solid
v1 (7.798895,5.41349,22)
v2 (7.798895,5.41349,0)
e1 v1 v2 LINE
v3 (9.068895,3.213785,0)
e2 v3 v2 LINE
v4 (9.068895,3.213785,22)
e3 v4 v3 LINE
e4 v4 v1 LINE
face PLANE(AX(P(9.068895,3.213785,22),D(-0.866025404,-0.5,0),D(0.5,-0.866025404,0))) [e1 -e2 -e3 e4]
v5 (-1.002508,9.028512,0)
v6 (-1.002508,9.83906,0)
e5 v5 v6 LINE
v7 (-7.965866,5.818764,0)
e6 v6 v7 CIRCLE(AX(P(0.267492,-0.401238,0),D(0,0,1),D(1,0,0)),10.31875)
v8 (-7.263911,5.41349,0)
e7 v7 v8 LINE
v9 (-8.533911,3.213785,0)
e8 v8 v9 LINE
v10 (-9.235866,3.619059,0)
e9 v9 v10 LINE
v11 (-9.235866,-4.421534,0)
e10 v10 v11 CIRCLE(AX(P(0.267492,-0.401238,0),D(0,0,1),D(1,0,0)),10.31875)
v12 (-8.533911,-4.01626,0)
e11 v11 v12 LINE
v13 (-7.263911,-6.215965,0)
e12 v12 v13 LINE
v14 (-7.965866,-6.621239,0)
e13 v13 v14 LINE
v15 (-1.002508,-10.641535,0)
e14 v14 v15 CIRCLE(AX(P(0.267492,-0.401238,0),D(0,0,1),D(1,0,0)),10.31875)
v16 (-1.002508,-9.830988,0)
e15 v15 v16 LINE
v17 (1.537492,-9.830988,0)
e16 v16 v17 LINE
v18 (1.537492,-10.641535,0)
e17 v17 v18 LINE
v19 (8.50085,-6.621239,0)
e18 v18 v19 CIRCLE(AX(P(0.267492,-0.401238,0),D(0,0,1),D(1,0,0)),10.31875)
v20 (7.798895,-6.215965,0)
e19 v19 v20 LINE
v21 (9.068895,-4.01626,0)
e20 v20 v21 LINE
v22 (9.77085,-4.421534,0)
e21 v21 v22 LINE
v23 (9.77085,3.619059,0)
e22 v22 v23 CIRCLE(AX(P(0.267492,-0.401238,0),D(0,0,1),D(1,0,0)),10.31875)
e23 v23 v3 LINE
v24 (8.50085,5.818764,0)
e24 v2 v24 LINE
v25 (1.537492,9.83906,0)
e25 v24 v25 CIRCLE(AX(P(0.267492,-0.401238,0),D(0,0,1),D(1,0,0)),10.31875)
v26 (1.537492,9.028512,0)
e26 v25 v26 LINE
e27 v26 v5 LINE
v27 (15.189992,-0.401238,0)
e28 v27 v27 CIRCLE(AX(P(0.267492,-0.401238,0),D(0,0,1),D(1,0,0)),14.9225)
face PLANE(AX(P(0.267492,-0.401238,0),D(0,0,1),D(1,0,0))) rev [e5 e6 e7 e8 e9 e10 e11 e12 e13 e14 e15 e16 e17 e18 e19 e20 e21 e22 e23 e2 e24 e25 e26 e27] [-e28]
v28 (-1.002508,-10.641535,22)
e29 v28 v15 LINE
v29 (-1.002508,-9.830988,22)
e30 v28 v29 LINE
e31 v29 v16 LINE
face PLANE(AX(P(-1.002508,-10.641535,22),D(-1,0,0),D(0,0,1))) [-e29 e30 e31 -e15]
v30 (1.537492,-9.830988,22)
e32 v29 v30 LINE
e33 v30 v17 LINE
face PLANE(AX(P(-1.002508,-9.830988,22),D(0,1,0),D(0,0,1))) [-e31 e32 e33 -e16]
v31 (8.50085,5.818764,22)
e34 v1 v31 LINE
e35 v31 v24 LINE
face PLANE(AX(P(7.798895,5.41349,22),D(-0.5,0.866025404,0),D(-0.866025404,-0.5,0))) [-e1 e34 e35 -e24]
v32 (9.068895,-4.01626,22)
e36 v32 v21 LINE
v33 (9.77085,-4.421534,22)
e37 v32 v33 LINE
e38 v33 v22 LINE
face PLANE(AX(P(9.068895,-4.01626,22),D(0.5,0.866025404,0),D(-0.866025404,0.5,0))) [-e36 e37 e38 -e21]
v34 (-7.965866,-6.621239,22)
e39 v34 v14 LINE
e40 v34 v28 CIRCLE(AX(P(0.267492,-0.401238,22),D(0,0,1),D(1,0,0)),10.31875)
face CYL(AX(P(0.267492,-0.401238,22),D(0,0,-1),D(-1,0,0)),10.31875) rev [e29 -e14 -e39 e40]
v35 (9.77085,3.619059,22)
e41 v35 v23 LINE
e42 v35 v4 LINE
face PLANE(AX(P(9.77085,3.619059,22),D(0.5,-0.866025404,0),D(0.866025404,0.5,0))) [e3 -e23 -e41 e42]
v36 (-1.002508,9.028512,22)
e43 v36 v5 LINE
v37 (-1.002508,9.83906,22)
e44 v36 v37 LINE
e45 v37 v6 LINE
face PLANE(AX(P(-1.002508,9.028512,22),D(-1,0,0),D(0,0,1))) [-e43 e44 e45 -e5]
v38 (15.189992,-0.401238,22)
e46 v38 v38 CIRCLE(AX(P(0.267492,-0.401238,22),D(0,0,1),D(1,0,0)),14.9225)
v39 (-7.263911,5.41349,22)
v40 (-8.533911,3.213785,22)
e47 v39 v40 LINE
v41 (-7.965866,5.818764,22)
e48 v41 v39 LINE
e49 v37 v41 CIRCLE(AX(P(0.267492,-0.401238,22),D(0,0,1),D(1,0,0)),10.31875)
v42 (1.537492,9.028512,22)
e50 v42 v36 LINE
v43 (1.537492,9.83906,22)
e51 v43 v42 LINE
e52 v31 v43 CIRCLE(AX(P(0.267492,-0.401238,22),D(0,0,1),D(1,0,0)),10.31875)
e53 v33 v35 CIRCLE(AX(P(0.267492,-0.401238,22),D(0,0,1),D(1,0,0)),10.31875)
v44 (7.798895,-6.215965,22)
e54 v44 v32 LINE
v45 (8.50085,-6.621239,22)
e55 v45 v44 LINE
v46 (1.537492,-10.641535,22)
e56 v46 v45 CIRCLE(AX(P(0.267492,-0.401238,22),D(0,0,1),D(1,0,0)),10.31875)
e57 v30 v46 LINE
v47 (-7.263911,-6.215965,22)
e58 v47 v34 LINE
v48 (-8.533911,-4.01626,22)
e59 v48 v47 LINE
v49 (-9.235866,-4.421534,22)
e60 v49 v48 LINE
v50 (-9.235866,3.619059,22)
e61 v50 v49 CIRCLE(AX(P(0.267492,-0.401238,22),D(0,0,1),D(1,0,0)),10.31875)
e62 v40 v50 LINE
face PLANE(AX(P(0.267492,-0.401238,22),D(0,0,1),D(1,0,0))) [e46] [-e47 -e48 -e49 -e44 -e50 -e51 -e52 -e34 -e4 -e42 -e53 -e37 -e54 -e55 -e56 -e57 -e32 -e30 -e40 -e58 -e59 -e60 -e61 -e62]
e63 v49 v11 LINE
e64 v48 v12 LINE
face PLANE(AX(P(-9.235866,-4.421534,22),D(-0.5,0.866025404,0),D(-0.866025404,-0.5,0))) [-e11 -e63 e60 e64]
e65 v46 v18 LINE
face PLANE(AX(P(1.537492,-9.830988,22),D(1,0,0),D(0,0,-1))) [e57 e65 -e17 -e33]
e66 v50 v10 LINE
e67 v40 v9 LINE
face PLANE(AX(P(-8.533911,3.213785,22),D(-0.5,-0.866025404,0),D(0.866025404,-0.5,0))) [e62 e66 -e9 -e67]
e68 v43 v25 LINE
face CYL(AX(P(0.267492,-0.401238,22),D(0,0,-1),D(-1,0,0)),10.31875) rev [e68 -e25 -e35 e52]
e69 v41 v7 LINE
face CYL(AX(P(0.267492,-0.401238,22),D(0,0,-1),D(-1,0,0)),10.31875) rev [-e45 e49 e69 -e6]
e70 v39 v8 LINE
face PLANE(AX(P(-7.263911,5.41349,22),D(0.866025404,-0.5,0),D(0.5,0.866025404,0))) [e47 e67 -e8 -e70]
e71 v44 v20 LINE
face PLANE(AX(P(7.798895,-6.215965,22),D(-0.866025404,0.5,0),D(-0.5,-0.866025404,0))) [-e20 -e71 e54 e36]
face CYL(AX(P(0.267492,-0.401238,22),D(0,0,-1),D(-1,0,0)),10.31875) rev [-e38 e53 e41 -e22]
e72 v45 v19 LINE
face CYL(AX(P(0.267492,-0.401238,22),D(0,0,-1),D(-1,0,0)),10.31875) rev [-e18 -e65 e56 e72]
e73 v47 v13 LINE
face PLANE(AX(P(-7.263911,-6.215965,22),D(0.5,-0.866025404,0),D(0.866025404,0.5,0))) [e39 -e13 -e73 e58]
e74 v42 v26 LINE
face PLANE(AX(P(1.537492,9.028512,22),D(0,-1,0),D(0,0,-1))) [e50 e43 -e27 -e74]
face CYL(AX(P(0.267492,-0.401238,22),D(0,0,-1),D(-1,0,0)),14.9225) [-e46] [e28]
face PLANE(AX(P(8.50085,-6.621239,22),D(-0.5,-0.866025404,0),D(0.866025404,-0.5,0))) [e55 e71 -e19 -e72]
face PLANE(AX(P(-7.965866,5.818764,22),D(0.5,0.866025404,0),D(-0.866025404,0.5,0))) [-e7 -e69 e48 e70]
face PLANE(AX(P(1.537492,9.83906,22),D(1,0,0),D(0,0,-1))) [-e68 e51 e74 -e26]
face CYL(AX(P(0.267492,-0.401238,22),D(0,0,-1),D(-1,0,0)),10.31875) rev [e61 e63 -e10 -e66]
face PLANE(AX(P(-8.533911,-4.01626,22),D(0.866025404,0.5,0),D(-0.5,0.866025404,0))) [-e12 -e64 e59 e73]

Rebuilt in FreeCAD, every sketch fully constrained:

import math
import FreeCAD as App
import Part
import Sketcher

V = App.Vector
Q = App.Units.Quantity

doc = App.newDocument("Part")
params = doc.addObject("Spreadsheet::Sheet", "Params")
for row, (alias, value) in enumerate([
    ("sketch1_diameter", "1.175 in"),
    ("sketch1_width", "0.1 in"),
    ("sketch1_radius", "0.40625 in"),
    ("sketch1_length", "0.1 in"),
    ("pad1_length", "22 mm"),
], start=1):
    params.set(f"A{row}", alias)
    params.set(f"B{row}", "=" + value)
    params.setAlias(f"B{row}", alias)

body = doc.addObject("PartDesign::Body", "Body")

sketch1 = body.newObject("Sketcher::SketchObject", "Sketch")
sketch1.AttachmentSupport = (doc.getObject("XY_Plane"), [""])
sketch1.MapMode = "FlatFace"
sketch1.addGeometry([
    Part.Circle(V(0.3, -0.4, 0), V(0, 0, 1), 14.9),
    Part.LineSegment(V(9.8, -4.4, 0), V(9.1, -4, 0)),
    Part.LineSegment(V(9.1, -4, 0), V(7.8, -6.2, 0)),
    Part.LineSegment(V(7.8, -6.2, 0), V(8.5, -6.6, 0)),
    Part.ArcOfCircle(Part.Circle(V(0.3, -0.4, 0), V(0, 0, 1), 10.3), math.radians(-83), math.radians(-37)),
    Part.LineSegment(V(1.5, -10.6, 0), V(1.5, -9.8, 0)),
    Part.LineSegment(V(1.5, -9.8, 0), V(-1, -9.8, 0)),
    Part.LineSegment(V(-1, -9.8, 0), V(-1, -10.6, 0)),
    Part.ArcOfCircle(Part.Circle(V(0.3, -0.4, 0), V(0, 0, 1), 10.3), math.radians(-143), math.radians(-97)),
    Part.LineSegment(V(-8, -6.6, 0), V(-7.3, -6.2, 0)),
    Part.LineSegment(V(-7.3, -6.2, 0), V(-8.5, -4, 0)),
    Part.LineSegment(V(-8.5, -4, 0), V(-9.2, -4.4, 0)),
    Part.ArcOfCircle(Part.Circle(V(0.3, -0.4, 0), V(0, 0, 1), 10.3), math.radians(157), math.radians(203)),
    Part.LineSegment(V(-9.2, 3.6, 0), V(-8.5, 3.2, 0)),
    Part.LineSegment(V(-8.5, 3.2, 0), V(-7.3, 5.4, 0)),
    Part.LineSegment(V(-7.3, 5.4, 0), V(-8, 5.8, 0)),
    Part.ArcOfCircle(Part.Circle(V(0.3, -0.4, 0), V(0, 0, 1), 10.3), math.radians(97), math.radians(143)),
    Part.LineSegment(V(-1, 9.8, 0), V(-1, 9, 0)),
    Part.LineSegment(V(-1, 9, 0), V(1.5, 9, 0)),
    Part.LineSegment(V(1.5, 9, 0), V(1.5, 9.8, 0)),
    Part.ArcOfCircle(Part.Circle(V(0.3, -0.4, 0), V(0, 0, 1), 10.3), math.radians(37), math.radians(83)),
    Part.LineSegment(V(8.5, 5.8, 0), V(7.8, 5.4, 0)),
    Part.LineSegment(V(7.8, 5.4, 0), V(9.1, 3.2, 0)),
    Part.LineSegment(V(9.1, 3.2, 0), V(9.8, 3.6, 0)),
    Part.ArcOfCircle(Part.Circle(V(0.3, -0.4, 0), V(0, 0, 1), 10.3), math.radians(-23), math.radians(23)),
], False)
sketch1.addConstraint([
    Sketcher.Constraint("Coincident", 1, 2, 2, 1),
    Sketcher.Constraint("Coincident", 2, 2, 3, 1),
    Sketcher.Constraint("Coincident", 3, 2, 4, 2),
    Sketcher.Constraint("Coincident", 4, 1, 5, 1),
    Sketcher.Constraint("Coincident", 5, 2, 6, 1),
    Sketcher.Constraint("Coincident", 6, 2, 7, 1),
    Sketcher.Constraint("Coincident", 7, 2, 8, 2),
    Sketcher.Constraint("Coincident", 8, 1, 9, 1),
    Sketcher.Constraint("Coincident", 9, 2, 10, 1),
    Sketcher.Constraint("Coincident", 10, 2, 11, 1),
    Sketcher.Constraint("Coincident", 11, 2, 12, 2),
    Sketcher.Constraint("Coincident", 12, 1, 13, 1),
    Sketcher.Constraint("Coincident", 13, 2, 14, 1),
    Sketcher.Constraint("Coincident", 14, 2, 15, 1),
    Sketcher.Constraint("Coincident", 15, 2, 16, 2),
    Sketcher.Constraint("Coincident", 16, 1, 17, 1),
    Sketcher.Constraint("Coincident", 17, 2, 18, 1),
    Sketcher.Constraint("Coincident", 18, 2, 19, 1),
    Sketcher.Constraint("Coincident", 19, 2, 20, 2),
    Sketcher.Constraint("Coincident", 20, 1, 21, 1),
    Sketcher.Constraint("Coincident", 21, 2, 22, 1),
    Sketcher.Constraint("Coincident", 22, 2, 23, 1),
    Sketcher.Constraint("Coincident", 23, 2, 24, 2),
    Sketcher.Constraint("Coincident", 24, 1, 1, 1),
    Sketcher.Constraint("Vertical", 5),
    Sketcher.Constraint("Horizontal", 6),
    Sketcher.Constraint("Vertical", 7),
    Sketcher.Constraint("Vertical", 17),
    Sketcher.Constraint("Horizontal", 18),
    Sketcher.Constraint("Vertical", 19),
    Sketcher.Constraint("Coincident", 4, 3, 0, 3),
    Sketcher.Constraint("Coincident", 8, 3, 0, 3),
    Sketcher.Constraint("Coincident", 12, 3, 0, 3),
    Sketcher.Constraint("Coincident", 16, 3, 0, 3),
    Sketcher.Constraint("Coincident", 20, 3, 0, 3),
    Sketcher.Constraint("Coincident", 24, 3, 0, 3),
    Sketcher.Constraint("Equal", 4, 8),
    Sketcher.Constraint("Equal", 8, 12),
    Sketcher.Constraint("Equal", 12, 16),
    Sketcher.Constraint("Equal", 16, 20),
    Sketcher.Constraint("Equal", 20, 24),
    Sketcher.Constraint("Perpendicular", 1, 2),
    Sketcher.Constraint("Perpendicular", 2, 3),
    Sketcher.Constraint("Perpendicular", 9, 10),
    Sketcher.Constraint("Perpendicular", 10, 11),
    Sketcher.Constraint("Parallel", 3, 13),
    Sketcher.Constraint("Perpendicular", 13, 14),
    Sketcher.Constraint("Perpendicular", 14, 15),
    Sketcher.Constraint("Parallel", 11, 21),
    Sketcher.Constraint("Perpendicular", 21, 22),
    Sketcher.Constraint("Perpendicular", 22, 23),
    Sketcher.Constraint("Horizontal", 4, 1, 7, 2),
    Sketcher.Constraint("Horizontal", 3, 2, 8, 1),
    Sketcher.Constraint("Horizontal", 2, 2, 9, 2),
    Sketcher.Constraint("Horizontal", 1, 2, 10, 2),
    Sketcher.Constraint("Horizontal", 16, 1, 19, 2),
    Sketcher.Constraint("Horizontal", 15, 2, 20, 1),
    Sketcher.Constraint("Horizontal", 14, 2, 21, 2),
    Sketcher.Constraint("Horizontal", 13, 2, 22, 2),
    Sketcher.Constraint("Horizontal", 12, 1, 23, 2),
    Sketcher.Constraint("Vertical", 11, 2, 12, 1),
    Sketcher.Constraint("Vertical", 10, 2, 13, 2),
    Sketcher.Constraint("Vertical", 9, 2, 14, 2),
    Sketcher.Constraint("Vertical", 7, 2, 16, 1),
    Sketcher.Constraint("Equal", 7, 17),
    Sketcher.Constraint("Equal", 1, 3),
    Sketcher.Constraint("Diameter", 0, Q("1.175 in")),
    Sketcher.Constraint("DistanceX", 6, 2, 6, 1, Q("0.1 in")),
    Sketcher.Constraint("Angle", 1, Q("150 deg")),
    Sketcher.Constraint("Radius", 4, Q("0.40625 in")),
    Sketcher.Constraint("Distance", 2, Q("0.1 in")),
    Sketcher.Constraint("DistanceY", 5, 1, 5, 2, 0.810548),
    Sketcher.Constraint("DistanceX", -1, 1, 0, 3, 0.267492),
    Sketcher.Constraint("DistanceY", 1, 2, -1, 1, 4.01626),
    Sketcher.Constraint("DistanceY", 3, 2, -1, 1, 6.621239),
])
sketch1.setExpression("Constraints[66]", "Params.sketch1_diameter")
sketch1.setExpression("Constraints[67]", "Params.sketch1_width")
sketch1.setExpression("Constraints[69]", "Params.sketch1_radius")
sketch1.setExpression("Constraints[70]", "Params.sketch1_length")
pad1 = body.newObject("PartDesign::Pad", "Pad")
pad1.Profile = sketch1
pad1.setExpression("Length", "Params.pad1_length")

doc.recompute()
